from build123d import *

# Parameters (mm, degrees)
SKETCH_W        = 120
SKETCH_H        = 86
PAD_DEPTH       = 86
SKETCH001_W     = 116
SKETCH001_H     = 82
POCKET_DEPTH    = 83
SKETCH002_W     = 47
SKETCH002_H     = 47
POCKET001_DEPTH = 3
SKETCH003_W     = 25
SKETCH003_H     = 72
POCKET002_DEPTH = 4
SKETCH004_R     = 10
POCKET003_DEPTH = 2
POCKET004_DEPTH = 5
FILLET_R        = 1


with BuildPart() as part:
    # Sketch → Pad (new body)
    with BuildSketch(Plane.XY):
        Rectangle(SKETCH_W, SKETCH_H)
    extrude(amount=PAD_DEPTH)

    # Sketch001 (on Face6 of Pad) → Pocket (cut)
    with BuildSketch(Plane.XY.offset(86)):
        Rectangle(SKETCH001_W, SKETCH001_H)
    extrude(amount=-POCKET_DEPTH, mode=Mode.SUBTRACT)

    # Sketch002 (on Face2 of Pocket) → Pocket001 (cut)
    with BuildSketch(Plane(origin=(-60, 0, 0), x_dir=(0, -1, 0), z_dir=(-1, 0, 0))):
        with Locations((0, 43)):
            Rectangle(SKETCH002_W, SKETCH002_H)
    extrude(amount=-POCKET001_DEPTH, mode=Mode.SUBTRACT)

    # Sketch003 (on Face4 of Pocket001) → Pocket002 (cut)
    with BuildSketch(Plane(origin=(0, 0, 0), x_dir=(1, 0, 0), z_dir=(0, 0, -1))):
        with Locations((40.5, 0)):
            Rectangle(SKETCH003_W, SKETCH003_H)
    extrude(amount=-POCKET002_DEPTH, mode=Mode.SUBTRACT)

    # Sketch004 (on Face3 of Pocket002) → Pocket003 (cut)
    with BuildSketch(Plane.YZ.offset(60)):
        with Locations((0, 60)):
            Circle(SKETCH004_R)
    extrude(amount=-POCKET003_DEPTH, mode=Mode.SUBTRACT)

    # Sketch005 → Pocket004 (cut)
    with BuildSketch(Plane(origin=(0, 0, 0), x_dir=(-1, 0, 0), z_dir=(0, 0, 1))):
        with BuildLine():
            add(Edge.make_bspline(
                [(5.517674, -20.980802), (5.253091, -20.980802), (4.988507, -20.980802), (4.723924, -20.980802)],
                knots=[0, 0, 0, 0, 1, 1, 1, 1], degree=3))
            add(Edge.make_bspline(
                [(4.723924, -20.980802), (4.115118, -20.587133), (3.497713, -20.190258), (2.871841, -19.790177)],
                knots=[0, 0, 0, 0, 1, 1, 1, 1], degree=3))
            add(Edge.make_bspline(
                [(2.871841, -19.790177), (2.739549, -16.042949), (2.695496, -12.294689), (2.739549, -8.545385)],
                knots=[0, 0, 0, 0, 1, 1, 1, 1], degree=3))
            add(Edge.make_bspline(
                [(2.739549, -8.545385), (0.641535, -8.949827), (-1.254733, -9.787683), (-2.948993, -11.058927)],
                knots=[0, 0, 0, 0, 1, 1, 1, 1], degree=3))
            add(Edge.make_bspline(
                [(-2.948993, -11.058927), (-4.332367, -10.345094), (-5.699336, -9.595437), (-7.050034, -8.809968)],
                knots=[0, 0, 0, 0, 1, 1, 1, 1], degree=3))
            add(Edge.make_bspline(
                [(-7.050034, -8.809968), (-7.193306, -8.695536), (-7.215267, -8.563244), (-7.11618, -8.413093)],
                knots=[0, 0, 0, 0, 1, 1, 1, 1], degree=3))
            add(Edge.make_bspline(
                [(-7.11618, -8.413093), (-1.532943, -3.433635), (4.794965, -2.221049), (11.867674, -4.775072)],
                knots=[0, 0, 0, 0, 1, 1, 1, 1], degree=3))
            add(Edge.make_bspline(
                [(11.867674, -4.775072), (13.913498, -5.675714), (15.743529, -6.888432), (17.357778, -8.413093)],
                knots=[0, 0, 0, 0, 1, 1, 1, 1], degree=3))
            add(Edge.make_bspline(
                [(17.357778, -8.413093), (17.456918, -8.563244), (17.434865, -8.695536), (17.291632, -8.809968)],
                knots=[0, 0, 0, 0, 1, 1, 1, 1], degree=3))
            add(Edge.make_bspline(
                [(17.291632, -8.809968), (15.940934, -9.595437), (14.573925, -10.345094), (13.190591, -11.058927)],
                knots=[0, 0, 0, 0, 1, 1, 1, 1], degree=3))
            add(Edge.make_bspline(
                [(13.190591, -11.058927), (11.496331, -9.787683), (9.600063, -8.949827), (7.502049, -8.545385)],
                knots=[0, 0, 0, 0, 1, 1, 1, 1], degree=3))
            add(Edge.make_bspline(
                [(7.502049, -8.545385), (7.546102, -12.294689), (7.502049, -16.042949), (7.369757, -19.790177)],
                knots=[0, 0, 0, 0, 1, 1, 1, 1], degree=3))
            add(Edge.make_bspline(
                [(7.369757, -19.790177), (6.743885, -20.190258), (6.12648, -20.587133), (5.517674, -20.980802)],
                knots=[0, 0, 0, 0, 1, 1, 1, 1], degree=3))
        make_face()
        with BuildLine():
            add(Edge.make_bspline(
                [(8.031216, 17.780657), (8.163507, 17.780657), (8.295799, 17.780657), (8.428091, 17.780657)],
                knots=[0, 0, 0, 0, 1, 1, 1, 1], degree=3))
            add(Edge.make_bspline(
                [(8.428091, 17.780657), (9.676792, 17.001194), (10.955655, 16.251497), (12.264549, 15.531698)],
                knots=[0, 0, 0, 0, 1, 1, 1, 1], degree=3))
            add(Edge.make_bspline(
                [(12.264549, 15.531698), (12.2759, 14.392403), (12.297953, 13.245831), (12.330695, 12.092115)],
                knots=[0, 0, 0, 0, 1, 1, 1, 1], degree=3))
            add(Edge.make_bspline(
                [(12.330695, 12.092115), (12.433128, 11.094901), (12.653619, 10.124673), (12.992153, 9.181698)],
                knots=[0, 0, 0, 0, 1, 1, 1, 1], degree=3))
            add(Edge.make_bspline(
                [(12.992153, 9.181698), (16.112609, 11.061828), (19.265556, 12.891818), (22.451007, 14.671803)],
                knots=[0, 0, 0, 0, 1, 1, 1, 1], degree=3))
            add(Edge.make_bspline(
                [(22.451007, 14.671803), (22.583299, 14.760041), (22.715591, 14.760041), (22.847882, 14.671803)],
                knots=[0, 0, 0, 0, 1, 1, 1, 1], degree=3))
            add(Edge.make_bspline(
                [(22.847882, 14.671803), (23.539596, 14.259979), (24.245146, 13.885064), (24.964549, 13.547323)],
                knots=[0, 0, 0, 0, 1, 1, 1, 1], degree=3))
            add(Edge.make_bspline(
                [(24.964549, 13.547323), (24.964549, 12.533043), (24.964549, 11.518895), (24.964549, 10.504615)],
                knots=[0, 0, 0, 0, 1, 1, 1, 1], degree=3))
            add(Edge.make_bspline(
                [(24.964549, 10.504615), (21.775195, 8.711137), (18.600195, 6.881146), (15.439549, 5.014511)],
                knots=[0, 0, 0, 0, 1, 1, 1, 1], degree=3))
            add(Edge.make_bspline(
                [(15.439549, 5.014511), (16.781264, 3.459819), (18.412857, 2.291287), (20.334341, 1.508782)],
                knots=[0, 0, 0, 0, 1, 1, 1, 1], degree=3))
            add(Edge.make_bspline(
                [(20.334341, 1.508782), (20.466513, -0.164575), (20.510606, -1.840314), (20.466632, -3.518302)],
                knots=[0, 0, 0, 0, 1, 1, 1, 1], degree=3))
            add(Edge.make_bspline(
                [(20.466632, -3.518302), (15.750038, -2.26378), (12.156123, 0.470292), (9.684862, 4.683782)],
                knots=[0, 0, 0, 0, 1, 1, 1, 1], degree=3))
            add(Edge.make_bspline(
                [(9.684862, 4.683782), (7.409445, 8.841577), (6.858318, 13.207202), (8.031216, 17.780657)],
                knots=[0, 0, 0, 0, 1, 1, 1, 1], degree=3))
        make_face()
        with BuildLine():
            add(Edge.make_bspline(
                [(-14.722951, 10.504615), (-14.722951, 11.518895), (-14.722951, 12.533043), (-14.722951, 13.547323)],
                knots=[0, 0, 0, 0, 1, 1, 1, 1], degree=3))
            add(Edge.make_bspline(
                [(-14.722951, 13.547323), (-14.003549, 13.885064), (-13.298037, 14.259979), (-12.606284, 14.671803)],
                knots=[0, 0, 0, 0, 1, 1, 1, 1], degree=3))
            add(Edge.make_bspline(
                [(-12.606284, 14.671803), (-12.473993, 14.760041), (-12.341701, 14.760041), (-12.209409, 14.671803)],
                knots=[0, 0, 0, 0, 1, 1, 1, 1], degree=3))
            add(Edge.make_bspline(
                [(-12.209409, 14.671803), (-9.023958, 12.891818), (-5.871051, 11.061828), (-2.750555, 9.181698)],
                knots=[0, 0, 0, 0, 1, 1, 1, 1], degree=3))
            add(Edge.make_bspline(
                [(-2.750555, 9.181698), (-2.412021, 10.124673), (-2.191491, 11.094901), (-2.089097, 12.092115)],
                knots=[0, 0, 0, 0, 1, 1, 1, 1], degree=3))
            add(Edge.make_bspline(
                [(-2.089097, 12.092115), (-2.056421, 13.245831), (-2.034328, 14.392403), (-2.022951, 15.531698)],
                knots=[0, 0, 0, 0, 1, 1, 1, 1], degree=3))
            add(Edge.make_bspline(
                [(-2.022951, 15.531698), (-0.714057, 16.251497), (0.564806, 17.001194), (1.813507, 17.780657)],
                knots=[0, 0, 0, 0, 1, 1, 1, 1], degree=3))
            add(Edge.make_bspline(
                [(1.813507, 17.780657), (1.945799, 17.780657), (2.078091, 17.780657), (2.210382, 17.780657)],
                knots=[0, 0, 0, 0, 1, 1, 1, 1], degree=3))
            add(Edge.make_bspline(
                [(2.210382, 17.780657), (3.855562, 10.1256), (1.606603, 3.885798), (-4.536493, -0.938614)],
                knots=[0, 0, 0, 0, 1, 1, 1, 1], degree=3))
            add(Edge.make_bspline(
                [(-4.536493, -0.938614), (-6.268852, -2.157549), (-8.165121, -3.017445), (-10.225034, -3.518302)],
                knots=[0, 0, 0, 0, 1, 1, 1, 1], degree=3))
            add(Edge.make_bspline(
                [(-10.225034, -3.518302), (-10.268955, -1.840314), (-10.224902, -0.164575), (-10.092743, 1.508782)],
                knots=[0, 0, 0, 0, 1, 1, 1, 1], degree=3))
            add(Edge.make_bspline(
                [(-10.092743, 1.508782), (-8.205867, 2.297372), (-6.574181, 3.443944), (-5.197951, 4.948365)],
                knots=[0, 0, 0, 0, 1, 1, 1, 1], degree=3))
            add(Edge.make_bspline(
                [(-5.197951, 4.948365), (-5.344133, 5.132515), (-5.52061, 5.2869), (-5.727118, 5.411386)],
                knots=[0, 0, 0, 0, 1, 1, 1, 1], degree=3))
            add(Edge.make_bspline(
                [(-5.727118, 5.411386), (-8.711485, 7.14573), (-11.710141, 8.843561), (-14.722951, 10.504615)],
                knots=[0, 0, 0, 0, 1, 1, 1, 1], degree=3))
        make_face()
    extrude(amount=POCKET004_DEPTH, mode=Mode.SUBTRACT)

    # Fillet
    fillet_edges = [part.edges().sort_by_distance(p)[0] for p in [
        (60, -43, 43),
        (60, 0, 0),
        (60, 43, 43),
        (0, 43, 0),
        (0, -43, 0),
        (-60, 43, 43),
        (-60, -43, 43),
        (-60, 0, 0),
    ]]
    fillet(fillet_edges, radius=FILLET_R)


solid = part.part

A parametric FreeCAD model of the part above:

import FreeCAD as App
import Part
import Sketcher
from FreeCAD import Vector
Q = App.Units.Quantity


def edges_at(feature, points):
    """Names of the edges that pass closest to the given points."""
    edges = feature.Shape.Edges
    near = lambda p: min(range(len(edges)), key=lambda i: edges[i].distToShape(Part.Vertex(*p))[0])
    return sorted({f"Edge{near(p) + 1}" for p in points})

doc = App.newDocument("Part")
body = doc.addObject("PartDesign::Body", "Body")

# Sketch on XY plane
sketch1 = body.newObject("Sketcher::SketchObject", "Sketch")
sketch1.AttachmentSupport = (doc.getObject("XY_Plane"), [""])
sketch1.MapMode = "FlatFace"
sketch1.addGeometry([
    Part.LineSegment(Vector(-60, 43, 0), Vector(-60, -43, 0)),
    Part.LineSegment(Vector(-60, -43, 0), Vector(60, -43, 0)),
    Part.LineSegment(Vector(60, -43, 0), Vector(60, 43, 0)),
    Part.LineSegment(Vector(60, 43, 0), Vector(-60, 43, 0)),
], False)
sketch1.addConstraint([
    Sketcher.Constraint("Coincident", 0, 2, 1, 1),
    Sketcher.Constraint("Coincident", 1, 2, 2, 1),
    Sketcher.Constraint("Coincident", 2, 2, 3, 1),
    Sketcher.Constraint("Coincident", 3, 2, 0, 1),
    Sketcher.Constraint("Vertical", 0),
    Sketcher.Constraint("Horizontal", 1),
    Sketcher.Constraint("Vertical", 2),
    Sketcher.Constraint("Horizontal", 3),
    Sketcher.Constraint("Symmetric", 0, 2, 2, 2, -1, 1),
    Sketcher.Constraint("DistanceX", 1, 1, 1, 2, Q("120 mm")),
    Sketcher.Constraint("DistanceY", 0, 2, 0, 1, Q("86 mm")),
])
pad1 = body.newObject("PartDesign::Pad", "Pad")
pad1.Profile = sketch1
pad1.Length = 86

# Sketch on XY plane
sketch2 = body.newObject("Sketcher::SketchObject", "Sketch001")
sketch2.AttachmentSupport = (doc.getObject("XY_Plane"), [""])
sketch2.MapMode = "FlatFace"
sketch2.AttachmentOffset = App.Placement(Vector(0, 0, 86), App.Rotation())
sketch2.addGeometry([
    Part.LineSegment(Vector(-58, 41, 0), Vector(-58, -41, 0)),
    Part.LineSegment(Vector(-58, -41, 0), Vector(58, -41, 0)),
    Part.LineSegment(Vector(58, -41, 0), Vector(58, 41, 0)),
    Part.LineSegment(Vector(58, 41, 0), Vector(-58, 41, 0)),
], False)
sketch2.addConstraint([
    Sketcher.Constraint("Coincident", 0, 2, 1, 1),
    Sketcher.Constraint("Coincident", 1, 2, 2, 1),
    Sketcher.Constraint("Coincident", 2, 2, 3, 1),
    Sketcher.Constraint("Coincident", 3, 2, 0, 1),
    Sketcher.Constraint("Vertical", 0),
    Sketcher.Constraint("Horizontal", 1),
    Sketcher.Constraint("Vertical", 2),
    Sketcher.Constraint("Horizontal", 3),
    Sketcher.Constraint("Symmetric", 0, 2, 2, 2, -1, 1),
    Sketcher.Constraint("DistanceX", 1, 1, 1, 2, Q("116 mm")),
    Sketcher.Constraint("DistanceY", 0, 2, 0, 1, Q("82 mm")),
])
pocket1 = body.newObject("PartDesign::Pocket", "Pocket")
pocket1.Profile = sketch2
pocket1.Length = 83

# Sketch on YZ plane
sketch3 = body.newObject("Sketcher::SketchObject", "Sketch002")
sketch3.AttachmentSupport = (doc.getObject("YZ_Plane"), [""])
sketch3.MapMode = "FlatFace"
sketch3.AttachmentOffset = App.Placement(Vector(0, 0, -60), App.Rotation())
sketch3.addGeometry([
    Part.LineSegment(Vector(24, 66, 0), Vector(24, 20, 0)),
    Part.LineSegment(Vector(24, 20, 0), Vector(-24, 20, 0)),
    Part.LineSegment(Vector(-24, 20, 0), Vector(-24, 66, 0)),
    Part.LineSegment(Vector(-24, 66, 0), Vector(24, 66, 0)),
], False)
sketch3.addConstraint([
    Sketcher.Constraint("Coincident", 0, 2, 1, 1),
    Sketcher.Constraint("Coincident", 1, 2, 2, 1),
    Sketcher.Constraint("Coincident", 2, 2, 3, 1),
    Sketcher.Constraint("Coincident", 3, 2, 0, 1),
    Sketcher.Constraint("Vertical", 0),
    Sketcher.Constraint("Horizontal", 1),
    Sketcher.Constraint("Vertical", 2),
    Sketcher.Constraint("Horizontal", 3),
    Sketcher.Constraint("Equal", 3, 0),
    Sketcher.Constraint("DistanceX", 1, 2, 1, 1, Q("47 mm")),
    Sketcher.Constraint("DistanceX", -1, 1, 0, 2, Q("23.5 mm")),
    Sketcher.Constraint("DistanceY", -1, 1, 0, 2, Q("19.5 mm")),
])
pocket2 = body.newObject("PartDesign::Pocket", "Pocket001")
pocket2.Profile = sketch3
pocket2.Length = 3
pocket2.Reversed = True

# Sketch on XY plane
sketch4 = body.newObject("Sketcher::SketchObject", "Sketch003")
sketch4.AttachmentSupport = (doc.getObject("XY_Plane"), [""])
sketch4.MapMode = "FlatFace"
sketch4.addGeometry([
    Part.LineSegment(Vector(28, -36, 0), Vector(28, 36, 0)),
    Part.LineSegment(Vector(28, 36, 0), Vector(53, 36, 0)),
    Part.LineSegment(Vector(53, 36, 0), Vector(53, -36, 0)),
    Part.LineSegment(Vector(53, -36, 0), Vector(28, -36, 0)),
], False)
sketch4.addConstraint([
    Sketcher.Constraint("Coincident", 0, 2, 1, 1),
    Sketcher.Constraint("Coincident", 1, 2, 2, 1),
    Sketcher.Constraint("Coincident", 2, 2, 3, 1),
    Sketcher.Constraint("Coincident", 3, 2, 0, 1),
    Sketcher.Constraint("Vertical", 0),
    Sketcher.Constraint("Horizontal", 1),
    Sketcher.Constraint("Vertical", 2),
    Sketcher.Constraint("Horizontal", 3),
    Sketcher.Constraint("DistanceX", 1, 1, 1, 2, Q("25 mm")),
    Sketcher.Constraint("DistanceY", 0, 1, 0, 2, Q("72 mm")),
    Sketcher.Constraint("DistanceX", -1, 1, 0, 2, Q("28 mm")),
    Sketcher.Constraint("DistanceY", -1, 1, 0, 2, Q("36 mm")),
])
pocket3 = body.newObject("PartDesign::Pocket", "Pocket002")
pocket3.Profile = sketch4
pocket3.Length = 4
pocket3.Reversed = True

# Sketch on YZ plane
sketch5 = body.newObject("Sketcher::SketchObject", "Sketch004")
sketch5.AttachmentSupport = (doc.getObject("YZ_Plane"), [""])
sketch5.MapMode = "FlatFace"
sketch5.AttachmentOffset = App.Placement(Vector(0, 0, 60), App.Rotation())
sketch5.addGeometry(Part.Circle(Vector(0, 60, 0), Vector(0, 0, 1), 10), False)
sketch5.addConstraint([
    Sketcher.Constraint("PointOnObject", 0, 3, -2),
    Sketcher.Constraint("Diameter", 0, Q("20 mm")),
    Sketcher.Constraint("DistanceY", -1, 1, 0, 3, Q("60 mm")),
])
pocket4 = body.newObject("PartDesign::Pocket", "Pocket003")
pocket4.Profile = sketch5
pocket4.Length = 2

# Sketch on XY plane
sketch6 = body.newObject("Sketcher::SketchObject", "Sketch005")
sketch6.AttachmentSupport = (doc.getObject("XY_Plane"), [""])
sketch6.MapMode = "FlatFace"
sketch6.addGeometry([
    Part.BSplineCurve([Vector(-5.517674, 20.980802, 0), Vector(-5.253091, 20.980802, 0), Vector(-4.988507, 20.980802, 0), Vector(-4.723924, 20.980802, 0)], [4, 4], [0, 1], False, 3, [1, 1, 1, 1], False),  # 0
    Part.BSplineCurve([Vector(-7.369757, 19.790177, 0), Vector(-6.743885, 20.190258, 0), Vector(-6.12648, 20.587133, 0), Vector(-5.517674, 20.980802, 0)], [4, 4], [0, 1], False, 3, [1, 1, 1, 1], False),  # 1
    Part.BSplineCurve([Vector(-7.502049, 8.545385, 0), Vector(-7.546102, 12.294689, 0), Vector(-7.502049, 16.042949, 0), Vector(-7.369757, 19.790177, 0)], [4, 4], [0, 1], False, 3, [1, 1, 1, 1], False),  # 2
    Part.BSplineCurve([Vector(-13.190591, 11.058927, 0), Vector(-11.496331, 9.787683, 0), Vector(-9.600063, 8.949827, 0), Vector(-7.502049, 8.545385, 0)], [4, 4], [0, 1], False, 3, [1, 1, 1, 1], False),  # 3
    Part.BSplineCurve([Vector(-17.291632, 8.809968, 0), Vector(-15.940934, 9.595437, 0), Vector(-14.573925, 10.345094, 0), Vector(-13.190591, 11.058927, 0)], [4, 4], [0, 1], False, 3, [1, 1, 1, 1], False),  # 4
    Part.BSplineCurve([Vector(-17.357778, 8.413093, 0), Vector(-17.456918, 8.563244, 0), Vector(-17.434865, 8.695536, 0), Vector(-17.291632, 8.809968, 0)], [4, 4], [0, 1], False, 3, [1, 1, 1, 1], False),  # 5
    Part.BSplineCurve([Vector(-11.867674, 4.775072, 0), Vector(-13.913498, 5.675714, 0), Vector(-15.743529, 6.888432, 0), Vector(-17.357778, 8.413093, 0)], [4, 4], [0, 1], False, 3, [1, 1, 1, 1], False),  # 6
    Part.BSplineCurve([Vector(7.11618, 8.413093, 0), Vector(1.532943, 3.433635, 0), Vector(-4.794965, 2.221049, 0), Vector(-11.867674, 4.775072, 0)], [4, 4], [0, 1], False, 3, [1, 1, 1, 1], False),  # 7
    Part.BSplineCurve([Vector(7.050034, 8.809968, 0), Vector(7.193306, 8.695536, 0), Vector(7.215267, 8.563244, 0), Vector(7.11618, 8.413093, 0)], [4, 4], [0, 1], False, 3, [1, 1, 1, 1], False),  # 8
    Part.BSplineCurve([Vector(2.948993, 11.058927, 0), Vector(4.332367, 10.345094, 0), Vector(5.699336, 9.595437, 0), Vector(7.050034, 8.809968, 0)], [4, 4], [0, 1], False, 3, [1, 1, 1, 1], False),  # 9
    Part.BSplineCurve([Vector(-2.739549, 8.545385, 0), Vector(-0.641535, 8.949827, 0), Vector(1.254733, 9.787683, 0), Vector(2.948993, 11.058927, 0)], [4, 4], [0, 1], False, 3, [1, 1, 1, 1], False),  # 10
    Part.BSplineCurve([Vector(-2.871841, 19.790177, 0), Vector(-2.739549, 16.042949, 0), Vector(-2.695496, 12.294689, 0), Vector(-2.739549, 8.545385, 0)], [4, 4], [0, 1], False, 3, [1, 1, 1, 1], False),  # 11
    Part.BSplineCurve([Vector(-4.723924, 20.980802, 0), Vector(-4.115118, 20.587133, 0), Vector(-3.497713, 20.190258, 0), Vector(-2.871841, 19.790177, 0)], [4, 4], [0, 1], False, 3, [1, 1, 1, 1], False),  # 12
    Part.BSplineCurve([Vector(-8.031216, -17.780657, 0), Vector(-8.163507, -17.780657, 0), Vector(-8.295799, -17.780657, 0), Vector(-8.428091, -17.780657, 0)], [4, 4], [0, 1], False, 3, [1, 1, 1, 1], False),  # 13
    Part.BSplineCurve([Vector(-9.684862, -4.683782, 0), Vector(-7.409445, -8.841577, 0), Vector(-6.858318, -13.207202, 0), Vector(-8.031216, -17.780657, 0)], [4, 4], [0, 1], False, 3, [1, 1, 1, 1], False),  # 14
    Part.BSplineCurve([Vector(-20.466632, 3.518302, 0), Vector(-15.750038, 2.26378, 0), Vector(-12.156123, -0.470292, 0), Vector(-9.684862, -4.683782, 0)], [4, 4], [0, 1], False, 3, [1, 1, 1, 1], False),  # 15
    Part.BSplineCurve([Vector(-20.334341, -1.508782, 0), Vector(-20.466513, 0.164575, 0), Vector(-20.510606, 1.840314, 0), Vector(-20.466632, 3.518302, 0)], [4, 4], [0, 1], False, 3, [1, 1, 1, 1], False),  # 16
    Part.BSplineCurve([Vector(-15.439549, -5.014511, 0), Vector(-16.781264, -3.459819, 0), Vector(-18.412857, -2.291287, 0), Vector(-20.334341, -1.508782, 0)], [4, 4], [0, 1], False, 3, [1, 1, 1, 1], False),  # 17
    Part.BSplineCurve([Vector(-24.964549, -10.504615, 0), Vector(-21.775195, -8.711137, 0), Vector(-18.600195, -6.881146, 0), Vector(-15.439549, -5.014511, 0)], [4, 4], [0, 1], False, 3, [1, 1, 1, 1], False),  # 18
    Part.BSplineCurve([Vector(-24.964549, -13.547323, 0), Vector(-24.964549, -12.533043, 0), Vector(-24.964549, -11.518895, 0), Vector(-24.964549, -10.504615, 0)], [4, 4], [0, 1], False, 3, [1, 1, 1, 1], False),  # 19
    Part.BSplineCurve([Vector(-22.847882, -14.671803, 0), Vector(-23.539596, -14.259979, 0), Vector(-24.245146, -13.885064, 0), Vector(-24.964549, -13.547323, 0)], [4, 4], [0, 1], False, 3, [1, 1, 1, 1], False),  # 20
    Part.BSplineCurve([Vector(-22.451007, -14.671803, 0), Vector(-22.583299, -14.760041, 0), Vector(-22.715591, -14.760041, 0), Vector(-22.847882, -14.671803, 0)], [4, 4], [0, 1], False, 3, [1, 1, 1, 1], False),  # 21
    Part.BSplineCurve([Vector(-12.992153, -9.181698, 0), Vector(-16.112609, -11.061828, 0), Vector(-19.265556, -12.891818, 0), Vector(-22.451007, -14.671803, 0)], [4, 4], [0, 1], False, 3, [1, 1, 1, 1], False),  # 22
    Part.BSplineCurve([Vector(-12.330695, -12.092115, 0), Vector(-12.433128, -11.094901, 0), Vector(-12.653619, -10.124673, 0), Vector(-12.992153, -9.181698, 0)], [4, 4], [0, 1], False, 3, [1, 1, 1, 1], False),  # 23
    Part.BSplineCurve([Vector(-12.264549, -15.531698, 0), Vector(-12.2759, -14.392403, 0), Vector(-12.297953, -13.245831, 0), Vector(-12.330695, -12.092115, 0)], [4, 4], [0, 1], False, 3, [1, 1, 1, 1], False),  # 24
    Part.BSplineCurve([Vector(-8.428091, -17.780657, 0), Vector(-9.676792, -17.001194, 0), Vector(-10.955655, -16.251497, 0), Vector(-12.264549, -15.531698, 0)], [4, 4], [0, 1], False, 3, [1, 1, 1, 1], False),  # 25
    Part.BSplineCurve([Vector(14.722951, -10.504615, 0), Vector(14.722951, -11.518895, 0), Vector(14.722951, -12.533043, 0), Vector(14.722951, -13.547323, 0)], [4, 4], [0, 1], False, 3, [1, 1, 1, 1], False),  # 26
    Part.BSplineCurve([Vector(5.727118, -5.411386, 0), Vector(8.711485, -7.14573, 0), Vector(11.710141, -8.843561, 0), Vector(14.722951, -10.504615, 0)], [4, 4], [0, 1], False, 3, [1, 1, 1, 1], False),  # 27
    Part.BSplineCurve([Vector(5.197951, -4.948365, 0), Vector(5.344133, -5.132515, 0), Vector(5.52061, -5.2869, 0), Vector(5.727118, -5.411386, 0)], [4, 4], [0, 1], False, 3, [1, 1, 1, 1], False),  # 28
    Part.BSplineCurve([Vector(10.092743, -1.508782, 0), Vector(8.205867, -2.297372, 0), Vector(6.574181, -3.443944, 0), Vector(5.197951, -4.948365, 0)], [4, 4], [0, 1], False, 3, [1, 1, 1, 1], False),  # 29
    Part.BSplineCurve([Vector(10.225034, 3.518302, 0), Vector(10.268955, 1.840314, 0), Vector(10.224902, 0.164575, 0), Vector(10.092743, -1.508782, 0)], [4, 4], [0, 1], False, 3, [1, 1, 1, 1], False),  # 30
    Part.BSplineCurve([Vector(4.536493, 0.938614, 0), Vector(6.268852, 2.157549, 0), Vector(8.165121, 3.017445, 0), Vector(10.225034, 3.518302, 0)], [4, 4], [0, 1], False, 3, [1, 1, 1, 1], False),  # 31
    Part.BSplineCurve([Vector(-2.210382, -17.780657, 0), Vector(-3.855562, -10.1256, 0), Vector(-1.606603, -3.885798, 0), Vector(4.536493, 0.938614, 0)], [4, 4], [0, 1], False, 3, [1, 1, 1, 1], False),  # 32
    Part.BSplineCurve([Vector(-1.813507, -17.780657, 0), Vector(-1.945799, -17.780657, 0), Vector(-2.078091, -17.780657, 0), Vector(-2.210382, -17.780657, 0)], [4, 4], [0, 1], False, 3, [1, 1, 1, 1], False),  # 33
    Part.BSplineCurve([Vector(2.022951, -15.531698, 0), Vector(0.714057, -16.251497, 0), Vector(-0.564806, -17.001194, 0), Vector(-1.813507, -17.780657, 0)], [4, 4], [0, 1], False, 3, [1, 1, 1, 1], False),  # 34
    Part.BSplineCurve([Vector(2.089097, -12.092115, 0), Vector(2.056421, -13.245831, 0), Vector(2.034328, -14.392403, 0), Vector(2.022951, -15.531698, 0)], [4, 4], [0, 1], False, 3, [1, 1, 1, 1], False),  # 35
    Part.BSplineCurve([Vector(2.750555, -9.181698, 0), Vector(2.412021, -10.124673, 0), Vector(2.191491, -11.094901, 0), Vector(2.089097, -12.092115, 0)], [4, 4], [0, 1], False, 3, [1, 1, 1, 1], False),  # 36
    Part.BSplineCurve([Vector(12.209409, -14.671803, 0), Vector(9.023958, -12.891818, 0), Vector(5.871051, -11.061828, 0), Vector(2.750555, -9.181698, 0)], [4, 4], [0, 1], False, 3, [1, 1, 1, 1], False),  # 37
    Part.BSplineCurve([Vector(12.606284, -14.671803, 0), Vector(12.473993, -14.760041, 0), Vector(12.341701, -14.760041, 0), Vector(12.209409, -14.671803, 0)], [4, 4], [0, 1], False, 3, [1, 1, 1, 1], False),  # 38
    Part.BSplineCurve([Vector(14.722951, -13.547323, 0), Vector(14.003549, -13.885064, 0), Vector(13.298037, -14.259979, 0), Vector(12.606284, -14.671803, 0)], [4, 4], [0, 1], False, 3, [1, 1, 1, 1], False),  # 39
], False)
sketch6.addConstraint([
    Sketcher.Constraint("Block", 0),
    Sketcher.Constraint("Block", 1),
    Sketcher.Constraint("Block", 2),
    Sketcher.Constraint("Block", 3),
    Sketcher.Constraint("Block", 4),
    Sketcher.Constraint("Block", 5),
    Sketcher.Constraint("Block", 6),
    Sketcher.Constraint("Block", 7),
    Sketcher.Constraint("Block", 8),
    Sketcher.Constraint("Block", 9),
    Sketcher.Constraint("Block", 10),
    Sketcher.Constraint("Block", 11),
    Sketcher.Constraint("Block", 12),
    Sketcher.Constraint("Block", 13),
    Sketcher.Constraint("Block", 14),
    Sketcher.Constraint("Block", 15),
    Sketcher.Constraint("Block", 16),
    Sketcher.Constraint("Block", 17),
    Sketcher.Constraint("Block", 18),
    Sketcher.Constraint("Block", 19),
    Sketcher.Constraint("Block", 20),
    Sketcher.Constraint("Block", 21),
    Sketcher.Constraint("Block", 22),
    Sketcher.Constraint("Block", 23),
    Sketcher.Constraint("Block", 24),
    Sketcher.Constraint("Block", 25),
    Sketcher.Constraint("Block", 26),
    Sketcher.Constraint("Block", 27),
    Sketcher.Constraint("Block", 28),
    Sketcher.Constraint("Block", 29),
    Sketcher.Constraint("Block", 30),
    Sketcher.Constraint("Block", 31),
    Sketcher.Constraint("Block", 32),
    Sketcher.Constraint("Block", 33),
    Sketcher.Constraint("Block", 34),
    Sketcher.Constraint("Block", 35),
    Sketcher.Constraint("Block", 36),
    Sketcher.Constraint("Block", 37),
    Sketcher.Constraint("Block", 38),
    Sketcher.Constraint("Block", 39),
])
pocket5 = body.newObject("PartDesign::Pocket", "Pocket004")
pocket5.Profile = sketch6
pocket5.Length = 5
pocket5.Reversed = True
doc.recompute()

fillet = body.newObject("PartDesign::Fillet", "Fillet")
fillet.Base = (pocket5, edges_at(pocket5, [
    (60, -43, 43),
    (60, 0, 0),
    (60, 43, 43),
    (0, 43, 0),
    (0, -43, 0),
    (-60, 43, 43),
    (-60, -43, 43),
    (-60, 0, 0),
]))
fillet.Radius = 1

doc.recompute()
